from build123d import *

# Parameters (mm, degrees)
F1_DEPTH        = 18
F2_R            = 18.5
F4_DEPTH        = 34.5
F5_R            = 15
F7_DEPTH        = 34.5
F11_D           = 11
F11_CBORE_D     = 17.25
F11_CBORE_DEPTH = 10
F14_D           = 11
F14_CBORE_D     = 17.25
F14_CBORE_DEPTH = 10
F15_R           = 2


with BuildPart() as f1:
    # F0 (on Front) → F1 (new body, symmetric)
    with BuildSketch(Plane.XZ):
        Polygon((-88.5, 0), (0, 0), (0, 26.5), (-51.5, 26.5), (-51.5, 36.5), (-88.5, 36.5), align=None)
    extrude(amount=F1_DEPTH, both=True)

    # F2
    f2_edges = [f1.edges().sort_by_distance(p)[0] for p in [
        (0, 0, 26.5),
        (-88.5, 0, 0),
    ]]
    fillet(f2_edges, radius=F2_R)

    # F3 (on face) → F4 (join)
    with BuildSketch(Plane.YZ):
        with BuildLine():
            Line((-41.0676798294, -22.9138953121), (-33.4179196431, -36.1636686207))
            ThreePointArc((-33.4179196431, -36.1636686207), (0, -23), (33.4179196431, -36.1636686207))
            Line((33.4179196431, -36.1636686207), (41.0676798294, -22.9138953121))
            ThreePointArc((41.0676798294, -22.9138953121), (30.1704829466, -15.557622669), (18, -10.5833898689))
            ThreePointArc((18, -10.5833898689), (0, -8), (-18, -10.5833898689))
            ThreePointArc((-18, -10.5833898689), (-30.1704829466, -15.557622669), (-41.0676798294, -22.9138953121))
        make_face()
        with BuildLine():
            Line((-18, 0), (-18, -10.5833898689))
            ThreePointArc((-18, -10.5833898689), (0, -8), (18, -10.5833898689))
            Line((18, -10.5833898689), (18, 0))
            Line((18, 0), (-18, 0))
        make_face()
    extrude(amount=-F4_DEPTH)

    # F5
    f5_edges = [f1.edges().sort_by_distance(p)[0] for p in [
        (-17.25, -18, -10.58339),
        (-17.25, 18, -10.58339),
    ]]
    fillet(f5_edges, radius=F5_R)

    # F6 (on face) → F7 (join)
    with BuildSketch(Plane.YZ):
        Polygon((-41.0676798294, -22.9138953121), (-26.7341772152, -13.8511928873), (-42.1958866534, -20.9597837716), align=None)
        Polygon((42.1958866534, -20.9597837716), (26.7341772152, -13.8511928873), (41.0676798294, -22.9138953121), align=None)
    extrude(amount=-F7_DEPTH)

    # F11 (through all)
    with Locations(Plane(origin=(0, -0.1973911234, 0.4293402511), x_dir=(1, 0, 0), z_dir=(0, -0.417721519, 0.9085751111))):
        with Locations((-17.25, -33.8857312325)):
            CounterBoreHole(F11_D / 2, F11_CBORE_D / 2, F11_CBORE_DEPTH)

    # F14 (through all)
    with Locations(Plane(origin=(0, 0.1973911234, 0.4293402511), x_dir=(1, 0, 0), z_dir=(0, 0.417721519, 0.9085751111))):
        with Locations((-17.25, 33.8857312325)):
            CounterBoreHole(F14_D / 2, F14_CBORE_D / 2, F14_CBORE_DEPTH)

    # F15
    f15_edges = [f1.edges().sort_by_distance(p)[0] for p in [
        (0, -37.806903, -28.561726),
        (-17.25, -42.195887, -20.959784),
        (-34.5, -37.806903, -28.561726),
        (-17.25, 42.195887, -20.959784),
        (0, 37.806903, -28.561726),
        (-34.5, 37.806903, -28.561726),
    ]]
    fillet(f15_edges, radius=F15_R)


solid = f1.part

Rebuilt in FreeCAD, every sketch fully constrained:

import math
import FreeCAD as App
import Part
import Sketcher
Q = App.Units.Quantity


def edges_at(feature, points):
    """Names of the edges that pass closest to the given points."""
    edges = feature.Shape.Edges
    near = lambda p: min(range(len(edges)), key=lambda i: edges[i].distToShape(Part.Vertex(*p))[0])
    return sorted({f"Edge{near(p) + 1}" for p in points})

doc = App.newDocument("Part")
body = doc.addObject("PartDesign::Body", "Body")

# Sketch on XZ plane
sketch1 = body.newObject("Sketcher::SketchObject", "Sketch")
sketch1.AttachmentSupport = (doc.getObject("XZ_Plane"), [""])
sketch1.MapMode = "FlatFace"
sketch1.addGeometry(Part.LineSegment(App.Vector(-88, 0, 0), App.Vector(0, 0, 0)), False)
sketch1.addGeometry(Part.LineSegment(App.Vector(0, 0, 0), App.Vector(0, 26, 0)), False)
sketch1.addGeometry(Part.LineSegment(App.Vector(0, 26, 0), App.Vector(-52, 26, 0)), False)
sketch1.addGeometry(Part.LineSegment(App.Vector(-52, 26, 0), App.Vector(-52, 36, 0)), False)
sketch1.addGeometry(Part.LineSegment(App.Vector(-52, 36, 0), App.Vector(-88, 36, 0)), False)
sketch1.addGeometry(Part.LineSegment(App.Vector(-88, 36, 0), App.Vector(-88, 0, 0)), False)
sketch1.addConstraint(Sketcher.Constraint("Coincident", 0, 2, 1, 1))
sketch1.addConstraint(Sketcher.Constraint("Coincident", 1, 2, 2, 1))
sketch1.addConstraint(Sketcher.Constraint("Coincident", 2, 2, 3, 1))
sketch1.addConstraint(Sketcher.Constraint("Coincident", 3, 2, 4, 1))
sketch1.addConstraint(Sketcher.Constraint("Coincident", 4, 2, 5, 1))
sketch1.addConstraint(Sketcher.Constraint("Coincident", 5, 2, 0, 1))
sketch1.addConstraint(Sketcher.Constraint("Horizontal", 0))
sketch1.addConstraint(Sketcher.Constraint("Vertical", 1))
sketch1.addConstraint(Sketcher.Constraint("Horizontal", 2))
sketch1.addConstraint(Sketcher.Constraint("Vertical", 3))
sketch1.addConstraint(Sketcher.Constraint("Horizontal", 4))
sketch1.addConstraint(Sketcher.Constraint("Vertical", 5))
sketch1.addConstraint(Sketcher.Constraint("Coincident", 0, 2, -1, 1))
sketch1.addConstraint(Sketcher.Constraint("DistanceX", 4, 2, 4, 1, Q("37 mm")))
sketch1.addConstraint(Sketcher.Constraint("DistanceY", 3, 1, 3, 2, Q("10 mm")))
sketch1.addConstraint(Sketcher.Constraint("DistanceX", 0, 1, 0, 2, Q("88.5 mm")))
sketch1.addConstraint(Sketcher.Constraint("DistanceY", 1, 1, 1, 2, Q("26.5 mm")))
pad1 = body.newObject("PartDesign::Pad", "Pad")
pad1.Profile = sketch1
pad1.Length = 36
pad1.Midplane = True
doc.recompute()

fillet = body.newObject("PartDesign::Fillet", "Fillet")
fillet.Base = (pad1, edges_at(pad1, [(0, 0, 26.5), (-88.5, 0, 0)]))
fillet.Radius = 18.5

# Sketch on YZ plane
sketch2 = body.newObject("Sketcher::SketchObject", "Sketch001")
sketch2.AttachmentSupport = (doc.getObject("YZ_Plane"), [""])
sketch2.MapMode = "FlatFace"
sketch2.addGeometry(Part.LineSegment(App.Vector(-41, -23, 0), App.Vector(-33, -36, 0)), False)
sketch2.addGeometry(Part.ArcOfCircle(Part.Circle(App.Vector(0, -72, 0), App.Vector(0, 0, 1), 49), math.radians(47), math.radians(133)), False)
sketch2.addGeometry(Part.LineSegment(App.Vector(33, -36, 0), App.Vector(41, -23, 0)), False)
sketch2.addGeometry(Part.ArcOfCircle(Part.Circle(App.Vector(0, -72, 0), App.Vector(0, 0, 1), 64), math.radians(50), math.radians(74)), False)
sketch2.addGeometry(Part.LineSegment(App.Vector(18, -11, 0), App.Vector(18, 0, 0)), False)
sketch2.addGeometry(Part.LineSegment(App.Vector(18, 0, 0), App.Vector(-18, 0, 0)), False)
sketch2.addGeometry(Part.LineSegment(App.Vector(-18, 0, 0), App.Vector(-18, -11, 0)), False)
sketch2.addGeometry(Part.ArcOfCircle(Part.Circle(App.Vector(0, -72, 0), App.Vector(0, 0, 1), 64), math.radians(106), math.radians(130)), False)
sketch2.addConstraint(Sketcher.Constraint("Coincident", 0, 2, 1, 2))
sketch2.addConstraint(Sketcher.Constraint("Coincident", 1, 1, 2, 1))
sketch2.addConstraint(Sketcher.Constraint("Coincident", 2, 2, 3, 1))
sketch2.addConstraint(Sketcher.Constraint("Coincident", 3, 2, 4, 1))
sketch2.addConstraint(Sketcher.Constraint("Coincident", 4, 2, 5, 1))
sketch2.addConstraint(Sketcher.Constraint("Coincident", 5, 2, 6, 1))
sketch2.addConstraint(Sketcher.Constraint("Coincident", 6, 2, 7, 1))
sketch2.addConstraint(Sketcher.Constraint("Coincident", 7, 2, 0, 1))
sketch2.addConstraint(Sketcher.Constraint("Vertical", 4))
sketch2.addConstraint(Sketcher.Constraint("Horizontal", 5))
sketch2.addConstraint(Sketcher.Constraint("Vertical", 6))
sketch2.addConstraint(Sketcher.Constraint("Coincident", 3, 3, 1, 3))
sketch2.addConstraint(Sketcher.Constraint("Coincident", 7, 3, 1, 3))
sketch2.addConstraint(Sketcher.Constraint("Equal", 3, 7))
sketch2.addConstraint(Sketcher.Constraint("Symmetric", 4, 2, 5, 2, -1, 1))
sketch2.addConstraint(Sketcher.Constraint("Symmetric", 0, 2, 1, 1, -2))
sketch2.addConstraint(Sketcher.Constraint("Horizontal", 2, 2, 7, 2))
sketch2.addConstraint(Sketcher.Constraint("Radius", 1, Q("49 mm")))
sketch2.addConstraint(Sketcher.Constraint("Radius", 3, Q("64 mm")))
sketch2.addConstraint(Sketcher.Constraint("DistanceX", 5, 2, 5, 1, Q("36 mm")))
sketch2.addConstraint(Sketcher.Constraint("Angle", 0, Q("-60 deg")))
sketch2.addConstraint(Sketcher.Constraint("DistanceY", 1, 3, -1, 1, Q("72 mm")))
sketch2.addConstraint(Sketcher.Constraint("DistanceX", 0, 2, 2, 2, Q("74.485599 mm")))
pad2 = body.newObject("PartDesign::Pad", "Pad001")
pad2.Profile = sketch2
pad2.Length = 34.5
pad2.Reversed = True
doc.recompute()

fillet2 = body.newObject("PartDesign::Fillet", "Fillet001")
fillet2.Base = (pad2, edges_at(pad2, [(-17.25, -18, -10.583), (-17.25, 18, -10.583)]))
fillet2.Radius = 15

# Sketch on YZ plane
sketch3 = body.newObject("Sketcher::SketchObject", "Sketch002")
sketch3.AttachmentSupport = (doc.getObject("YZ_Plane"), [""])
sketch3.MapMode = "FlatFace"
sketch3.addGeometry(Part.LineSegment(App.Vector(-41.1, -22.9, 0), App.Vector(-26.7, -13.9, 0)), False)
sketch3.addGeometry(Part.LineSegment(App.Vector(-26.7, -13.9, 0), App.Vector(-42.2, -21, 0)), False)
sketch3.addGeometry(Part.LineSegment(App.Vector(-42.2, -21, 0), App.Vector(-41.1, -22.9, 0)), False)
sketch3.addGeometry(Part.LineSegment(App.Vector(42.2, -21, 0), App.Vector(26.7, -13.9, 0)), False)
sketch3.addGeometry(Part.LineSegment(App.Vector(26.7, -13.9, 0), App.Vector(41.1, -22.9, 0)), False)
sketch3.addGeometry(Part.LineSegment(App.Vector(41.1, -22.9, 0), App.Vector(42.2, -21, 0)), False)
sketch3.addConstraint(Sketcher.Constraint("Coincident", 0, 2, 1, 1))
sketch3.addConstraint(Sketcher.Constraint("Coincident", 1, 2, 2, 1))
sketch3.addConstraint(Sketcher.Constraint("Coincident", 2, 2, 0, 1))
sketch3.addConstraint(Sketcher.Constraint("Coincident", 3, 2, 4, 1))
sketch3.addConstraint(Sketcher.Constraint("Coincident", 4, 2, 5, 1))
sketch3.addConstraint(Sketcher.Constraint("Coincident", 5, 2, 3, 1))
sketch3.addConstraint(Sketcher.Constraint("Symmetric", 0, 2, 3, 2, -2))
sketch3.addConstraint(Sketcher.Constraint("Symmetric", 2, 2, 4, 2, -2))
sketch3.addConstraint(Sketcher.Constraint("Symmetric", 1, 2, 5, 2, -2))
sketch3.addConstraint(Sketcher.Constraint("Angle", 2, Q("-60 deg")))
sketch3.addConstraint(Sketcher.Constraint("Distance", 0, Q("16.958239 mm")))
sketch3.addConstraint(Sketcher.Constraint("DistanceX", 2, 2, -1, 1, Q("41.06768 mm")))
sketch3.addConstraint(Sketcher.Constraint("DistanceX", 1, 2, 0, 2, Q("15.461709 mm")))
sketch3.addConstraint(Sketcher.Constraint("DistanceY", 1, 2, 0, 2, Q("7.108591 mm")))
sketch3.addConstraint(Sketcher.Constraint("DistanceY", 0, 2, -1, 1, Q("13.851193 mm")))
pad3 = body.newObject("PartDesign::Pad", "Pad002")
pad3.Profile = sketch3
pad3.Length = 34.5
pad3.Reversed = True

# Sketch on an angled plane
sketch4 = body.newObject("Sketcher::SketchObject", "Sketch003")
sketch4.Placement = App.Placement(App.Vector(0, -0.197391, 0.42934), App.Rotation(App.Vector(1, 0, 0), App.Vector(0, 0.908575111, 0.417721519), App.Vector(0, -0.417721519, 0.908575111), "ZXY"))
sketch4.addGeometry(Part.Circle(App.Vector(-17, -34, 0), App.Vector(0, 0, 1), 6), False)
sketch4.addConstraint(Sketcher.Constraint("Diameter", 0, Q("11 mm")))
sketch4.addConstraint(Sketcher.Constraint("DistanceX", 0, 3, -1, 1, Q("17.25 mm")))
sketch4.addConstraint(Sketcher.Constraint("DistanceY", 0, 3, -1, 1, Q("33.885731 mm")))
doc.recompute()
hole = body.newObject("PartDesign::Hole", "Hole")
hole.Profile = sketch4
hole.ThreadType = "None"
hole.Diameter = 11
hole.DepthType = "ThroughAll"
hole.HoleCutType = "Counterbore"
hole.HoleCutDiameter = 17.25
hole.HoleCutDepth = 10

# Sketch on an angled plane
sketch5 = body.newObject("Sketcher::SketchObject", "Sketch004")
sketch5.Placement = App.Placement(App.Vector(0, 0.197391, 0.42934), App.Rotation(App.Vector(1, 0, 0), App.Vector(0, 0.908575111, -0.417721519), App.Vector(0, 0.417721519, 0.908575111), "ZXY"))
sketch5.addGeometry(Part.Circle(App.Vector(-17, 34, 0), App.Vector(0, 0, 1), 6), False)
sketch5.addConstraint(Sketcher.Constraint("Diameter", 0, Q("11 mm")))
sketch5.addConstraint(Sketcher.Constraint("DistanceX", 0, 3, -1, 1, Q("17.25 mm")))
sketch5.addConstraint(Sketcher.Constraint("DistanceY", -1, 1, 0, 3, Q("33.885731 mm")))
doc.recompute()
hole2 = body.newObject("PartDesign::Hole", "Hole001")
hole2.Profile = sketch5
hole2.ThreadType = "None"
hole2.Diameter = 11
hole2.DepthType = "ThroughAll"
hole2.HoleCutType = "Counterbore"
hole2.HoleCutDiameter = 17.25
hole2.HoleCutDepth = 10
doc.recompute()

fillet3 = body.newObject("PartDesign::Fillet", "Fillet002")
fillet3.Base = (hole2, edges_at(hole2, [
    (0, -37.243, -29.539),
    (-17.25, -42.196, -20.96),
    (-34.5, -37.243, -29.539),
    (-17.25, 42.196, -20.96),
    (0, 37.243, -29.539),
    (-34.5, 37.243, -29.539),
]))
fillet3.Radius = 2

doc.recompute()
